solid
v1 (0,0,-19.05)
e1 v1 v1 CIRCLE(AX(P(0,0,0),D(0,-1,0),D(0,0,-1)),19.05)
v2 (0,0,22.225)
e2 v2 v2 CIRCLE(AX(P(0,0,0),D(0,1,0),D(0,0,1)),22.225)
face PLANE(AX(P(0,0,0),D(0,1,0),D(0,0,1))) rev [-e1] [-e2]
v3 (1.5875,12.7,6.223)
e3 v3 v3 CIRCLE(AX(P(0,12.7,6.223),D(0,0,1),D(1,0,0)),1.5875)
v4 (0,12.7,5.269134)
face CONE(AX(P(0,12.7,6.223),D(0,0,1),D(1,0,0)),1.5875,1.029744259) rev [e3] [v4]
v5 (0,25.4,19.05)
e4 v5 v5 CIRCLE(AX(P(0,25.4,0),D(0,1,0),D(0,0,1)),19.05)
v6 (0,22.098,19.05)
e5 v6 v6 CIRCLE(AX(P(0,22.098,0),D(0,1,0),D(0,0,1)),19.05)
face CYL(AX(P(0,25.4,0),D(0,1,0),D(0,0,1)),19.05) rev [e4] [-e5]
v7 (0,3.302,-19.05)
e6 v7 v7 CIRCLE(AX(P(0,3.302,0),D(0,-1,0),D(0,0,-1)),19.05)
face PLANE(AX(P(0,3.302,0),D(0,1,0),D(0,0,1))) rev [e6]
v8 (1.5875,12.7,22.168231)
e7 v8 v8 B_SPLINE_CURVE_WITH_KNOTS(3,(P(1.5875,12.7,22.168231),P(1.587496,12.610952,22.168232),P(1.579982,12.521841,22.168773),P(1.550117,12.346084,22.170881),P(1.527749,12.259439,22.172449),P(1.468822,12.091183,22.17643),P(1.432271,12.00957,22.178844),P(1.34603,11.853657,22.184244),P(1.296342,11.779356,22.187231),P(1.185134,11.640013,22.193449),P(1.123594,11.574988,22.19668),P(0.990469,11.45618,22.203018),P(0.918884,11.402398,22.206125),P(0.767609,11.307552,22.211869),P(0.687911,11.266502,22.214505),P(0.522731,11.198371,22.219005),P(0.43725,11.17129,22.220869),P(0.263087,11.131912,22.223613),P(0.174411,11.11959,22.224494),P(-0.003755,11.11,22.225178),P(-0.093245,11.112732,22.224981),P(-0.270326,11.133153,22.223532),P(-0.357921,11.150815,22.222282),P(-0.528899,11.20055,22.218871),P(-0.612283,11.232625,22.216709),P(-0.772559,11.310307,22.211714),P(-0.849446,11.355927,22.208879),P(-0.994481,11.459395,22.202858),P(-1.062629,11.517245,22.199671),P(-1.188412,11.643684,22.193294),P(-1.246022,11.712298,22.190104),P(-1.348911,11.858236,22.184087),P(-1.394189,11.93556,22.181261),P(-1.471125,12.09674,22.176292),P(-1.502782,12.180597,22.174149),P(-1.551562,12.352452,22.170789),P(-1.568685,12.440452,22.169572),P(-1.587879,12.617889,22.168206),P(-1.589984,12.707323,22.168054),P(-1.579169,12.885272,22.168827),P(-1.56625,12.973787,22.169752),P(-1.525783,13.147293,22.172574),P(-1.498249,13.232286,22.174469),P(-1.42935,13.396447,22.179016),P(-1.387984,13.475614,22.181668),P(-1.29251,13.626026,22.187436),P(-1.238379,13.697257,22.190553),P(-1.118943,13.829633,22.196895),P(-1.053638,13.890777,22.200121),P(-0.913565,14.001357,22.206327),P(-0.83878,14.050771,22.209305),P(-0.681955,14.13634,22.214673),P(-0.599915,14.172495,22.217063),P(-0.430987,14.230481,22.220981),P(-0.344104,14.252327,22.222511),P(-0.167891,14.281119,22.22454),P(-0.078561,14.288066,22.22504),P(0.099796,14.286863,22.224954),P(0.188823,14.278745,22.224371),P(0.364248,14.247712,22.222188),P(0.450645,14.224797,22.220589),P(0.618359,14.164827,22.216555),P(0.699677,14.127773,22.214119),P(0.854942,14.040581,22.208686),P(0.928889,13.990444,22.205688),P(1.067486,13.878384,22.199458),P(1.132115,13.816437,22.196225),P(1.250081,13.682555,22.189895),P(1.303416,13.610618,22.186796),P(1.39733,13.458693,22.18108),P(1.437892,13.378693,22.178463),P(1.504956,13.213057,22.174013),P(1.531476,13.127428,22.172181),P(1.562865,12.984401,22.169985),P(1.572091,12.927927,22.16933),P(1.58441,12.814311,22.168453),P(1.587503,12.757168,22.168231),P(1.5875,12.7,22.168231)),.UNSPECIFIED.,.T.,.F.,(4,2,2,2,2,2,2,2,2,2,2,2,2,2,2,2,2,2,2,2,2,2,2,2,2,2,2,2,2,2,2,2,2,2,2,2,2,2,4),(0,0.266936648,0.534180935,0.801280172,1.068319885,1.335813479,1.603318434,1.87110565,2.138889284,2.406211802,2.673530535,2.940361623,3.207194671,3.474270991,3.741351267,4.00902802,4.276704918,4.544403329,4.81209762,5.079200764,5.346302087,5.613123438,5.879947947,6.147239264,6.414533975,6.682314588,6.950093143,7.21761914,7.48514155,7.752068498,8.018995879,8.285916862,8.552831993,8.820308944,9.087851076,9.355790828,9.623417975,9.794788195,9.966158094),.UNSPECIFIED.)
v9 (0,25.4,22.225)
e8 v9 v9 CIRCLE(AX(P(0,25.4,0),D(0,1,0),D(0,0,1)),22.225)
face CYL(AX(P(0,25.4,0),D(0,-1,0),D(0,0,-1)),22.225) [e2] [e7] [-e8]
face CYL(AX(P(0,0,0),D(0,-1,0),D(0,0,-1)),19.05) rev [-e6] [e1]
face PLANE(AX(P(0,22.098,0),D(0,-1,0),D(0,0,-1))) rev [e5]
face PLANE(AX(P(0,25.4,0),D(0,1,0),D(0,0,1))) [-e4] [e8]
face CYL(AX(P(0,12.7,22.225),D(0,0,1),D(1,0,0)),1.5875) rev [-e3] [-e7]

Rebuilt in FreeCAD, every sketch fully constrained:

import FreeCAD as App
import Part
import Sketcher

V = App.Vector
Q = App.Units.Quantity

doc = App.newDocument("Part")
body = doc.addObject("PartDesign::Body", "Body")

sketch1 = body.newObject("Sketcher::SketchObject", "Sketch")
sketch1.AttachmentSupport = (doc.getObject("XZ_Plane"), [""])
sketch1.MapMode = "FlatFace"
sketch1.addGeometry(Part.Circle(V(0, 0, 0), V(0, 0, 1), 22), False)
sketch1.addConstraint([
    Sketcher.Constraint("Coincident", 0, 3, -1, 1),
    Sketcher.Constraint("Diameter", 0, Q("1.75 in")),
])
pad1 = body.newObject("PartDesign::Pad", "Pad")
pad1.Profile = sketch1
pad1.Length = Q("1 in")
pad1.Reversed = True

sketch2 = body.newObject("Sketcher::SketchObject", "Sketch001")
sketch2.AttachmentSupport = (doc.getObject("XZ_Plane"), [""])
sketch2.MapMode = "FlatFace"
sketch2.AttachmentOffset = App.Placement(V(0, 0, -1 * 25.4), App.Rotation())
sketch2.addGeometry(Part.Circle(V(0, 0, 0), V(0, 0, 1), 19), False)
sketch2.addConstraint([
    Sketcher.Constraint("Coincident", 0, 3, -1, 1),
    Sketcher.Constraint("Diameter", 0, Q("1.5 in")),
])
doc.recompute()
hole = body.newObject("PartDesign::Hole", "Hole")
hole.Profile = sketch2
hole.ThreadType = "None"
hole.Diameter = Q("1.5 in")
hole.DepthType = "Dimension"
hole.Depth = Q("0.13 in")
hole.DrillPoint = "Flat"
hole.Reversed = True

sketch3 = body.newObject("Sketcher::SketchObject", "Sketch002")
sketch3.AttachmentSupport = (doc.getObject("XZ_Plane"), [""])
sketch3.MapMode = "FlatFace"
sketch3.addGeometry(Part.Circle(V(0, 0, 0), V(0, 0, 1), 19), False)
sketch3.addConstraint([
    Sketcher.Constraint("Coincident", 0, 3, -1, 1),
    Sketcher.Constraint("Diameter", 0, Q("1.5 in")),
])
doc.recompute()
hole2 = body.newObject("PartDesign::Hole", "Hole001")
hole2.Profile = sketch3
hole2.ThreadType = "None"
hole2.Diameter = Q("1.5 in")
hole2.DepthType = "Dimension"
hole2.Depth = Q("0.13 in")
hole2.DrillPoint = "Flat"

sketch4 = body.newObject("Sketcher::SketchObject", "Sketch003")
sketch4.AttachmentSupport = (doc.getObject("XY_Plane"), [""])
sketch4.MapMode = "FlatFace"
sketch4.AttachmentOffset = App.Placement(V(0, 0, 0.875 * 25.4), App.Rotation())
sketch4.addGeometry(Part.Circle(V(0, 12.7, 0), V(0, 0, 1), 1.6), False)
sketch4.addConstraint([
    Sketcher.Constraint("PointOnObject", 0, 3, -2),
    Sketcher.Constraint("Diameter", 0, Q("0.125 in")),
    Sketcher.Constraint("DistanceY", -1, 1, 0, 3, Q("0.5 in")),
])
doc.recompute()
hole3 = body.newObject("PartDesign::Hole", "Hole002")
hole3.Profile = sketch4
hole3.ThreadType = "None"
hole3.Diameter = Q("0.125 in")
hole3.DepthType = "Dimension"
hole3.Depth = Q("0.63 in")
hole3.DrillPoint = "Angled"
hole3.DrillPointAngle = 118

doc.recompute()
